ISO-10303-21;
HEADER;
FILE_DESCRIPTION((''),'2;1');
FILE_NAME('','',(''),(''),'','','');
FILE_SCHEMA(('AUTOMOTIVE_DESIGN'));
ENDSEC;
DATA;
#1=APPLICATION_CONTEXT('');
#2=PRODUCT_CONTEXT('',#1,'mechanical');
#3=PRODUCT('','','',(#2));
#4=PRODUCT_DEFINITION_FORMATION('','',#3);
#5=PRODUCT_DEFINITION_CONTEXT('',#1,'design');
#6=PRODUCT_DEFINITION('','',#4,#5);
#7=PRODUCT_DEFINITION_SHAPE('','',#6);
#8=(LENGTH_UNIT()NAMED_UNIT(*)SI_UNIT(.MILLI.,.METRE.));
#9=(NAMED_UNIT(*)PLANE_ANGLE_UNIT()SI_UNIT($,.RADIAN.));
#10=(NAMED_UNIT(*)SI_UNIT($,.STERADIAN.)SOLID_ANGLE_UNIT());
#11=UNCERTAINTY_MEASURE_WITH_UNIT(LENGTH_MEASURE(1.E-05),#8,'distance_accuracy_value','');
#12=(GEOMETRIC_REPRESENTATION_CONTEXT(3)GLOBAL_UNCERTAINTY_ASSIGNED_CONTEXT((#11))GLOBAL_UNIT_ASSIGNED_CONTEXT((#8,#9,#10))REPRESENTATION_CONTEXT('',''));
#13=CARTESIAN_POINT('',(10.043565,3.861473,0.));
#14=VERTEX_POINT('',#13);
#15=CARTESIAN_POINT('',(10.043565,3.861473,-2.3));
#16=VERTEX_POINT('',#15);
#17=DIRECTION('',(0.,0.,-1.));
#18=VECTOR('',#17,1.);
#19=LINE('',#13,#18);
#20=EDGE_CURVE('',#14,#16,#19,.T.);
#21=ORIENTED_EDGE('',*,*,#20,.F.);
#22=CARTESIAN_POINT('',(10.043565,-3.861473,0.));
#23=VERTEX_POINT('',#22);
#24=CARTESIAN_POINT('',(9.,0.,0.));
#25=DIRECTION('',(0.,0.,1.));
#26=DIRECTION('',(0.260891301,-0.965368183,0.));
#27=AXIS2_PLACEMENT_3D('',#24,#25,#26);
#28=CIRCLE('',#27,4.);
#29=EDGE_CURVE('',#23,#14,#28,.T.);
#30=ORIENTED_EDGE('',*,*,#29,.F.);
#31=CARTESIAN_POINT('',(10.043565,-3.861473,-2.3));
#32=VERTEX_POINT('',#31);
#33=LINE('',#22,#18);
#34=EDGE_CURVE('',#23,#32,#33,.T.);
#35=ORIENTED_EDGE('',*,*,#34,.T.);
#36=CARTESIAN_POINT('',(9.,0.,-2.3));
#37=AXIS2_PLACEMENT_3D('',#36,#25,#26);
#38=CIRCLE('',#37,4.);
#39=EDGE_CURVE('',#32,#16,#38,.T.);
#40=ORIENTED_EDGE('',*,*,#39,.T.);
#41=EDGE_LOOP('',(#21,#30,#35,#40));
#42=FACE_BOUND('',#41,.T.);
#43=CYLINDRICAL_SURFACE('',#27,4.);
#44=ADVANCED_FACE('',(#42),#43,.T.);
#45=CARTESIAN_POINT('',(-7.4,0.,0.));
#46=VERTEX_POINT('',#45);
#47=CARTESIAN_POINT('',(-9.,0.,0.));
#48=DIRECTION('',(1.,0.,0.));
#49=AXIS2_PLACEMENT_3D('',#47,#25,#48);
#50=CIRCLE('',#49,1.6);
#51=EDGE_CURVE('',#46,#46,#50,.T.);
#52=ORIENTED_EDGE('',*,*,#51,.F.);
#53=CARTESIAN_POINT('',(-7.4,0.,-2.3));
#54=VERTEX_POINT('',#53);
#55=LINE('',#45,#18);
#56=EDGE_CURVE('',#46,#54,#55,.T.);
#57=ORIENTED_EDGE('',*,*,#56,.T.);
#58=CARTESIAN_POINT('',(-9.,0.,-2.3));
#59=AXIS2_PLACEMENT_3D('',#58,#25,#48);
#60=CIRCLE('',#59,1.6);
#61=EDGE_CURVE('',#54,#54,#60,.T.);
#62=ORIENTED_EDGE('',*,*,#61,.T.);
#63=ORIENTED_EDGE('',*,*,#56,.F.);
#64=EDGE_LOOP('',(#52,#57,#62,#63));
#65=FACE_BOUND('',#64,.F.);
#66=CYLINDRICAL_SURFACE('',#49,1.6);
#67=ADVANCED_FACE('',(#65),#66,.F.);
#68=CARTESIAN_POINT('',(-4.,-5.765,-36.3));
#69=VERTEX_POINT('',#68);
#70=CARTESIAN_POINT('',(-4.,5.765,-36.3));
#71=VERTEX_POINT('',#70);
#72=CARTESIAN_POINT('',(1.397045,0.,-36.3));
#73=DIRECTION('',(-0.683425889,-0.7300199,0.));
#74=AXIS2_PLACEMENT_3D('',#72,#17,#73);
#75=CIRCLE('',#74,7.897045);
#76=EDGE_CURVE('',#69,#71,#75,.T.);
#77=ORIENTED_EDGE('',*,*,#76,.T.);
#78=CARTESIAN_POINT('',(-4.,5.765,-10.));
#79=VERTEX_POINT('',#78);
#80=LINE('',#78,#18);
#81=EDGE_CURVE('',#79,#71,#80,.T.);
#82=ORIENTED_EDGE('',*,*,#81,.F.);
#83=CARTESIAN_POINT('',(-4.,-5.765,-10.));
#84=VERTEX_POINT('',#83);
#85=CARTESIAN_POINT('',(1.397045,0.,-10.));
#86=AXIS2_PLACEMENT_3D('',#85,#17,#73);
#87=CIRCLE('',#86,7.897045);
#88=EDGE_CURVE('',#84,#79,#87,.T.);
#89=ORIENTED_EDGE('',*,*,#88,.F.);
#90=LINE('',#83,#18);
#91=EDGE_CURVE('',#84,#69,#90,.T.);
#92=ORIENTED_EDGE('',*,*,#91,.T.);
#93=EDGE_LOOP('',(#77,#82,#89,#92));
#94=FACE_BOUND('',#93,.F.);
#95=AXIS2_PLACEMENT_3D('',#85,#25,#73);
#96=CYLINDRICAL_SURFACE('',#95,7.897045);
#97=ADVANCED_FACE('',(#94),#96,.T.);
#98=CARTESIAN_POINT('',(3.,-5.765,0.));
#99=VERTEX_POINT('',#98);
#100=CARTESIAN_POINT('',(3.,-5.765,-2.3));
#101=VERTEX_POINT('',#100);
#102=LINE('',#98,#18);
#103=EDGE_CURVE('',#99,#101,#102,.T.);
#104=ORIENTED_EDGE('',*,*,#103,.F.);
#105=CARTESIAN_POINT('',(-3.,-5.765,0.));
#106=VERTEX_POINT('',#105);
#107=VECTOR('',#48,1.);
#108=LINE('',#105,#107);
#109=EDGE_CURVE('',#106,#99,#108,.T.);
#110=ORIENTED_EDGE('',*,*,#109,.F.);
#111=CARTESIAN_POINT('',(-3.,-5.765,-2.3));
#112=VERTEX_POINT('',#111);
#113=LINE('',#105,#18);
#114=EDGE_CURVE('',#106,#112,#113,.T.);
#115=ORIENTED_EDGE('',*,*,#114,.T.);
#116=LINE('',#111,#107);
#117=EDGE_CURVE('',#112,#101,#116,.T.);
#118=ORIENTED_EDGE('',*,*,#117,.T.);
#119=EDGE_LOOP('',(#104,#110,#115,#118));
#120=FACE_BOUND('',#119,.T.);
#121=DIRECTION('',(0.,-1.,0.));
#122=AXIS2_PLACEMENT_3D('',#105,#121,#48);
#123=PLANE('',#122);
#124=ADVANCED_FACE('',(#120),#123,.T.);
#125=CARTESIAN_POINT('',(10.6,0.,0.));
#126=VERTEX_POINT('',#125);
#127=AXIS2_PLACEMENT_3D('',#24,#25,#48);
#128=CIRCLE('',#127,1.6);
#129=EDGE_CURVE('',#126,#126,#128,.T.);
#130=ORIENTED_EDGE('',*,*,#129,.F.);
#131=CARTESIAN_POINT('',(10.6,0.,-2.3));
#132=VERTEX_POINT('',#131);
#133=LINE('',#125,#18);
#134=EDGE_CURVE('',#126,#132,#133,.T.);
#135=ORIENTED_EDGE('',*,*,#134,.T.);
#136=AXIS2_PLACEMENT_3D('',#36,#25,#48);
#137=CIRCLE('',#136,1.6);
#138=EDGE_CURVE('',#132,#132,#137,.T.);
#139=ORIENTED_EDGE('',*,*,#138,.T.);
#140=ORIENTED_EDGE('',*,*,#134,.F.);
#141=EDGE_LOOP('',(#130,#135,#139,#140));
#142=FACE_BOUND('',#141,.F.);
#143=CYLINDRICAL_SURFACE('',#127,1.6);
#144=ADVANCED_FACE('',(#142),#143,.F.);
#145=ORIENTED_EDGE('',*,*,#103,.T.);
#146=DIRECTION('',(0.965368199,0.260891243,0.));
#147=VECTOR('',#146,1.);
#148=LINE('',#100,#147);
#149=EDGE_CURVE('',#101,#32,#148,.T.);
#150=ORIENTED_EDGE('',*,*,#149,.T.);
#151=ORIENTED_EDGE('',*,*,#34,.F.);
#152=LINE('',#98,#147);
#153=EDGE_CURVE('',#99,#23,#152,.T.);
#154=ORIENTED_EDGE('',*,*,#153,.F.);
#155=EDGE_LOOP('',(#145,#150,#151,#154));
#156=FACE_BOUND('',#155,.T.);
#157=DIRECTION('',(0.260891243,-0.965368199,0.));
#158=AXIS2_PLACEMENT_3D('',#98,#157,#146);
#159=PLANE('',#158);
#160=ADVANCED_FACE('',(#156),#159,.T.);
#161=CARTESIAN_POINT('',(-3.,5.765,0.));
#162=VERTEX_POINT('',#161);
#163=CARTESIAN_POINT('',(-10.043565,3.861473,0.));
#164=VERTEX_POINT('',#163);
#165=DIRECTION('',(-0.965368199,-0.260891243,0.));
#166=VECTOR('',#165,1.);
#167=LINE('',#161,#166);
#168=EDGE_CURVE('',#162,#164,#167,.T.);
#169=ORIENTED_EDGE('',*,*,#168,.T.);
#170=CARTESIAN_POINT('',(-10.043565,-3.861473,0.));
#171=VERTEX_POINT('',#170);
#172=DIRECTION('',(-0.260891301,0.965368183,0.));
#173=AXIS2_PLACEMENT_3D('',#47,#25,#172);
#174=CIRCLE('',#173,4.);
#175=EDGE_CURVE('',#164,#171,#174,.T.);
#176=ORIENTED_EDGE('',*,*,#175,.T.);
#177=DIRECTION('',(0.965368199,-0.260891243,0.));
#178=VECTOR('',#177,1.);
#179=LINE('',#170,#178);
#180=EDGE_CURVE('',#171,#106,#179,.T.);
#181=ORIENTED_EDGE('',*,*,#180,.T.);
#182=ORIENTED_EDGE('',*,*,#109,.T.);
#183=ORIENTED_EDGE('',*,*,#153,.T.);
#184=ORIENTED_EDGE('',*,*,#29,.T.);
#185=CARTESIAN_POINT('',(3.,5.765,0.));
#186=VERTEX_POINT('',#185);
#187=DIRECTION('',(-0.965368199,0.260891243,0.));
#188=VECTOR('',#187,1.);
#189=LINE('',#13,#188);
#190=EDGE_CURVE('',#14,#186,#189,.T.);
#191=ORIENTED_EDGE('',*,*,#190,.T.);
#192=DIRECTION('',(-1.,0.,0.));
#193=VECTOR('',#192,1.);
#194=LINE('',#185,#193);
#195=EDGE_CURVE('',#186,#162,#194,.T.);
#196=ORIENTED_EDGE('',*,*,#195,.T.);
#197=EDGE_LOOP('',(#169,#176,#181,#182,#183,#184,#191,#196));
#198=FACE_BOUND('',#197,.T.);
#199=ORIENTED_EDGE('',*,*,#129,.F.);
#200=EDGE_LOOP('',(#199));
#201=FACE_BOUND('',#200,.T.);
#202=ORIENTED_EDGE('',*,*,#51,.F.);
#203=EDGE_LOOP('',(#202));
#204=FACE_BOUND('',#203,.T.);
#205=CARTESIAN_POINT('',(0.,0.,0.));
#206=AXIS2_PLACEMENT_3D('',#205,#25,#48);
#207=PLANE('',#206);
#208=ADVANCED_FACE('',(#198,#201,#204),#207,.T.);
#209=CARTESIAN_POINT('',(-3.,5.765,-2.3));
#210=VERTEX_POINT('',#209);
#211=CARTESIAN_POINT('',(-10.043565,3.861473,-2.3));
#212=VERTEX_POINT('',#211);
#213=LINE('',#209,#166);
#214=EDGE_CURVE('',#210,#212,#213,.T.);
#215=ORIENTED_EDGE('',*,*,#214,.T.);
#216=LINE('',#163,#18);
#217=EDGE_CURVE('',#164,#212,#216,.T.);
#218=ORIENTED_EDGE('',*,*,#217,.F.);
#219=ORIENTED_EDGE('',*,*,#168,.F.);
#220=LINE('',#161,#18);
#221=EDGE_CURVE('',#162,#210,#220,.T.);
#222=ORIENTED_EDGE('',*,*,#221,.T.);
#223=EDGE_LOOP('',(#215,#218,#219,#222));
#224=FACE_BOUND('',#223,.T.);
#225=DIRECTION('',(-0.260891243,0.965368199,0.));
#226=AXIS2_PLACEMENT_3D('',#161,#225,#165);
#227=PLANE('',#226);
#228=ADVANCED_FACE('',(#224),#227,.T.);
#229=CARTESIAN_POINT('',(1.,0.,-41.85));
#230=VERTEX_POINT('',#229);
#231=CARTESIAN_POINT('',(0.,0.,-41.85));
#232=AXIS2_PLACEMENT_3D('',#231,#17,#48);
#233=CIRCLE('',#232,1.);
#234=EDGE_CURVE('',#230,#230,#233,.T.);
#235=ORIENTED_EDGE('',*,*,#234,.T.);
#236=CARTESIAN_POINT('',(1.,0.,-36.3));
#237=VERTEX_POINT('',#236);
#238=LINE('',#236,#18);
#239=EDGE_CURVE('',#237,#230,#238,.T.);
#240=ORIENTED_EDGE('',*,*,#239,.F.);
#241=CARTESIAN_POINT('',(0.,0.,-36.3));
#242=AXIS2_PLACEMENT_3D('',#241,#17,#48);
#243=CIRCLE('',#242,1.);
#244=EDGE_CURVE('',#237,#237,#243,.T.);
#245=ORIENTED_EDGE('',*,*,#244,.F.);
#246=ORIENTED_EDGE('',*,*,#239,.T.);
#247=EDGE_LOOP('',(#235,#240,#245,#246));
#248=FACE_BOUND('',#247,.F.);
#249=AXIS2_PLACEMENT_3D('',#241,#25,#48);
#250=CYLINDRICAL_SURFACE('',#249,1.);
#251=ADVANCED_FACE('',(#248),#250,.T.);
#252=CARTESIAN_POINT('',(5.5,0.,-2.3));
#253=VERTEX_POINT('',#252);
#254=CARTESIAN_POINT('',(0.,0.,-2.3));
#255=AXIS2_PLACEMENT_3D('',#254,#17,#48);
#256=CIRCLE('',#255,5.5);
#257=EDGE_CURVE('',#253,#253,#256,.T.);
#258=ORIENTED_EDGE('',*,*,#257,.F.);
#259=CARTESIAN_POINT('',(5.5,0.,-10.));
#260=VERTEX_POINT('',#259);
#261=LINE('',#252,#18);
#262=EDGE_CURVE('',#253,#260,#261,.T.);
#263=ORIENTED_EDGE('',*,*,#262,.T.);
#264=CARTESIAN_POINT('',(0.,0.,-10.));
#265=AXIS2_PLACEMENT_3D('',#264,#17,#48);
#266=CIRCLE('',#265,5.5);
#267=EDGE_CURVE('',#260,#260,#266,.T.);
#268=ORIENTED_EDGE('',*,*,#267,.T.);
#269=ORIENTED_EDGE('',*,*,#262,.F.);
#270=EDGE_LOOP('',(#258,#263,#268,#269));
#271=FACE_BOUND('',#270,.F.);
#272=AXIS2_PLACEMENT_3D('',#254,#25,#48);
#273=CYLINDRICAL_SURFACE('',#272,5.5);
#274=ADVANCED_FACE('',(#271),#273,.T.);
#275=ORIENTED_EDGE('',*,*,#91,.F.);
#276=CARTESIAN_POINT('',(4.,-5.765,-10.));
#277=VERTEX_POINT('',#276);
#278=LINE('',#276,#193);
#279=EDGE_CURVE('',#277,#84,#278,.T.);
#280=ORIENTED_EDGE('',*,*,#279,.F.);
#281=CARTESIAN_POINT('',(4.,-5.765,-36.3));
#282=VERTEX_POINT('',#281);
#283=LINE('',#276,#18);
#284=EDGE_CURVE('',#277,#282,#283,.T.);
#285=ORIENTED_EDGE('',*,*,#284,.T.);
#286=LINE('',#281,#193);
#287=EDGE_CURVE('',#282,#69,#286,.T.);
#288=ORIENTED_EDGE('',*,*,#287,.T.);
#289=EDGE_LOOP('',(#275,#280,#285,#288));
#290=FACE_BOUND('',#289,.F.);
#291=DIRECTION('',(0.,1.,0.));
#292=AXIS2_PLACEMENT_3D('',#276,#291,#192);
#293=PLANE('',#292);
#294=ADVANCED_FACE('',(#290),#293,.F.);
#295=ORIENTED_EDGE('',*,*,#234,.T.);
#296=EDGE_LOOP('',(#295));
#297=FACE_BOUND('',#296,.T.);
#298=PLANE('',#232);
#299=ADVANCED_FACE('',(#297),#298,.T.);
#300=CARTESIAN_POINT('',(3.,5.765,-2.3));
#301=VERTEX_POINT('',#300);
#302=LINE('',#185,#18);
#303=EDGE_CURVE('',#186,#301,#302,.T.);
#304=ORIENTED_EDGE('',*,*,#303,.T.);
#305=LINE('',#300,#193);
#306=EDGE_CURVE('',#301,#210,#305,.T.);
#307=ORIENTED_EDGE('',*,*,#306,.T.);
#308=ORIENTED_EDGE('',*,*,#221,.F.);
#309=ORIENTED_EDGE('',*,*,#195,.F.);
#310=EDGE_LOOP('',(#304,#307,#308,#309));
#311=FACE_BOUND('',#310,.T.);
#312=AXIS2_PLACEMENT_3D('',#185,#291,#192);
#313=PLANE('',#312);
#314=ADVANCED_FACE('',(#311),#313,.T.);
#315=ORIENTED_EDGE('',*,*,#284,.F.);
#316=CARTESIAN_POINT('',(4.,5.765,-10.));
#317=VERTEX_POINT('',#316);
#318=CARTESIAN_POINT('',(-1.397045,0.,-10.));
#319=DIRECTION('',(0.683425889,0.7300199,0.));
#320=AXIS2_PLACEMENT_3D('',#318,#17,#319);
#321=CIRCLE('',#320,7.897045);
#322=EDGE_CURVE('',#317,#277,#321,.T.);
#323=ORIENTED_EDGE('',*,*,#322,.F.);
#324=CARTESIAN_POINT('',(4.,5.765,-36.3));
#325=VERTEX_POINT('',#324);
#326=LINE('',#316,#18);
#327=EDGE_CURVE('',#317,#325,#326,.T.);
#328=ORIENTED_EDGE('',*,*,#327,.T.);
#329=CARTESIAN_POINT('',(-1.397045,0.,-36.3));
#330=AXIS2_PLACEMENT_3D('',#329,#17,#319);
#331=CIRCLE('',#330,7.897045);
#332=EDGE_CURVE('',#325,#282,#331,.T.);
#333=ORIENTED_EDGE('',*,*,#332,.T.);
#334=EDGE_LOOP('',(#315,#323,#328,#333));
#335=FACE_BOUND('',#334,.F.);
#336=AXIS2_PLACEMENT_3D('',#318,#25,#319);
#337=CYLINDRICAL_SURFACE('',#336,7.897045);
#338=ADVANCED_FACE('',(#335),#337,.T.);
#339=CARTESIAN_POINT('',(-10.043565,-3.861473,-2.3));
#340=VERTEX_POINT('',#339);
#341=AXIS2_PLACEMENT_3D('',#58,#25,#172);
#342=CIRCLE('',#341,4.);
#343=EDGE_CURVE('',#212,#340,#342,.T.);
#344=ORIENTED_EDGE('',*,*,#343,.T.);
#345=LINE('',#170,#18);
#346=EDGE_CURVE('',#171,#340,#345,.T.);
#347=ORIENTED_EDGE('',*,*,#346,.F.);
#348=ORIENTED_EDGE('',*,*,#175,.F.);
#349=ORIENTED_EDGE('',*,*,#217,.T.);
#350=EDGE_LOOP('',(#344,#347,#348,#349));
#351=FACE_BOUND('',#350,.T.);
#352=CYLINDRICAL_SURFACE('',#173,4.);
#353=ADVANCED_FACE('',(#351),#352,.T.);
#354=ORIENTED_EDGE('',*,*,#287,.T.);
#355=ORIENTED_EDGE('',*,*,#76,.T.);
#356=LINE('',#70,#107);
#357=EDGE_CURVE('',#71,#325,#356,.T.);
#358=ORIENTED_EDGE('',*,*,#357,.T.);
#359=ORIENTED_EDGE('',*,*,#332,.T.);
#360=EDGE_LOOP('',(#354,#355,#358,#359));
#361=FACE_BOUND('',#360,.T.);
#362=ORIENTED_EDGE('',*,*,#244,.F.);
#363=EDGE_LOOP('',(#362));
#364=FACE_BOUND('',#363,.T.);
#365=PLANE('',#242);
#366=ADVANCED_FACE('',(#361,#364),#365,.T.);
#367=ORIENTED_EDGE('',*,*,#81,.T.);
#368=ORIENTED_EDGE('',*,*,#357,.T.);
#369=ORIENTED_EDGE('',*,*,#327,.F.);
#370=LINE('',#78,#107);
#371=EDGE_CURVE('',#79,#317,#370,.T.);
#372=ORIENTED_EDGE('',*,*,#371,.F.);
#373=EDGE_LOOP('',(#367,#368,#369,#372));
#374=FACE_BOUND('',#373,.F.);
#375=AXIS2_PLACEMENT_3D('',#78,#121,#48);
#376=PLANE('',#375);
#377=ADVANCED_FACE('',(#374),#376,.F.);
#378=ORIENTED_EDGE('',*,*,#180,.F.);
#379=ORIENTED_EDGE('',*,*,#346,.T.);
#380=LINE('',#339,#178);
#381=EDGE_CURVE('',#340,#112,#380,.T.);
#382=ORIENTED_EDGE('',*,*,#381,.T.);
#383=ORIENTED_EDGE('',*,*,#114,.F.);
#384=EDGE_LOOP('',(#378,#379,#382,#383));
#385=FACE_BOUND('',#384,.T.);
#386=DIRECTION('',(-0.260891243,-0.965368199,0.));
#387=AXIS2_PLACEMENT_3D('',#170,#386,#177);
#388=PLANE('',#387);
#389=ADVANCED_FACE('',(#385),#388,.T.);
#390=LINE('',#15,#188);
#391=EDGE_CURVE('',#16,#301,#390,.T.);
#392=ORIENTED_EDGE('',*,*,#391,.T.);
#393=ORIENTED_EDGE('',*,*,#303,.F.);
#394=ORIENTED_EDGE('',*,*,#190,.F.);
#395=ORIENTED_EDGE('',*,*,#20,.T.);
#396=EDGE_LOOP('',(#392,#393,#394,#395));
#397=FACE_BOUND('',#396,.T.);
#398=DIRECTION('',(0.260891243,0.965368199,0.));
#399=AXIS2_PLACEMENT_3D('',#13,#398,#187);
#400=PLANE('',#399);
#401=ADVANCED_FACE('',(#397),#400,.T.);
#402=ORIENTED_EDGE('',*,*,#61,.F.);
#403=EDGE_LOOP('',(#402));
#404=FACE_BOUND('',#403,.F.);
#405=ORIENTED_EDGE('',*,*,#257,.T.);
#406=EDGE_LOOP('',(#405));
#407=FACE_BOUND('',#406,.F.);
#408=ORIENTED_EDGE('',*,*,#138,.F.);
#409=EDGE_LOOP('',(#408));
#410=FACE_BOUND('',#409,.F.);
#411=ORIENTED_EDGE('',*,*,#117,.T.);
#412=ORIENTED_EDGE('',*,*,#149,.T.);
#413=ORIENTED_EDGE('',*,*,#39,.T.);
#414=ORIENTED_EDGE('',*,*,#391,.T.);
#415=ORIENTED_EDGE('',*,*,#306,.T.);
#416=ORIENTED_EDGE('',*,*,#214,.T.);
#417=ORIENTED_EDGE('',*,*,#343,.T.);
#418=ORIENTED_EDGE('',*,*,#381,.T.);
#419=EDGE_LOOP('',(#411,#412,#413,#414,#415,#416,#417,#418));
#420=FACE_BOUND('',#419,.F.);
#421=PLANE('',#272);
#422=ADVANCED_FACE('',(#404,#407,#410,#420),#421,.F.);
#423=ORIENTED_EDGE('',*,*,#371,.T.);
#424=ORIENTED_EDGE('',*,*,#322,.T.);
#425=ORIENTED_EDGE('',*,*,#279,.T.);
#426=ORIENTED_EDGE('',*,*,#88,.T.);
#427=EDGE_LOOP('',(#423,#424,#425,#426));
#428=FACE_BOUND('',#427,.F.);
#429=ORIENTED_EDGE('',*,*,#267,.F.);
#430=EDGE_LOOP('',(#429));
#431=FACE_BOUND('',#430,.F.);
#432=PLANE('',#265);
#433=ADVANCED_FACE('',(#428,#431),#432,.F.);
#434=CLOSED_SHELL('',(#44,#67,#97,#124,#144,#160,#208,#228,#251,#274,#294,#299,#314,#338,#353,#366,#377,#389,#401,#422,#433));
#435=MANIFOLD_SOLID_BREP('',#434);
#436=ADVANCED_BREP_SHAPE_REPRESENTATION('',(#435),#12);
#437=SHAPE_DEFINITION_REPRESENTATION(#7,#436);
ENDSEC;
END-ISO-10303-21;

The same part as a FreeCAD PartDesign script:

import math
import FreeCAD as App
import Part
import Sketcher
Q = App.Units.Quantity

doc = App.newDocument("Part")
params = doc.addObject("Spreadsheet::Sheet", "Params")
for row, (alias, value) in enumerate([
    ("sketch1_radius", "4 mm"),
    ("sketch1_diameter", "3.2 mm"),
    ("sketch1_width", "6 mm"),
    ("pad1_length", "2.3 mm"),
    ("sketch2_diameter", "11 mm"),
    ("pad2_length", "7.7 mm"),
    ("sketch3_width", "8 mm"),
    ("pad3_length", "26.3 mm"),
    ("sketch4_diameter", "2 mm"),
    ("pad4_length", "5.55 mm"),
], start=1):
    params.set(f"A{row}", alias)
    params.set(f"B{row}", "=" + value)
    params.setAlias(f"B{row}", alias)

body = doc.addObject("PartDesign::Body", "Body")

# Sketch on XY plane
sketch1 = body.newObject("Sketcher::SketchObject", "Sketch")
sketch1.AttachmentSupport = (doc.getObject("XY_Plane"), [""])
sketch1.MapMode = "FlatFace"
sketch1.addGeometry([
    Part.LineSegment(App.Vector(3, 5.765, 0), App.Vector(-3, 5.765, 0)),  # 0
    Part.LineSegment(App.Vector(-3, 5.765, 0), App.Vector(-10.043565, 3.861473, 0)),  # 1
    Part.ArcOfCircle(Part.Circle(App.Vector(-9, 0, 0), App.Vector(0, 0, 1), 4), math.radians(105.122955), math.radians(254.877045)),  # 2
    Part.LineSegment(App.Vector(-10.043565, -3.861473, 0), App.Vector(-3, -5.765, 0)),  # 3
    Part.LineSegment(App.Vector(-3, -5.765, 0), App.Vector(3, -5.765, 0)),  # 4
    Part.LineSegment(App.Vector(3, -5.765, 0), App.Vector(10.043565, -3.861473, 0)),  # 5
    Part.ArcOfCircle(Part.Circle(App.Vector(9, 0, 0), App.Vector(0, 0, 1), 4), math.radians(-74.877045), math.radians(74.877045)),  # 6
    Part.LineSegment(App.Vector(10.043565, 3.861473, 0), App.Vector(3, 5.765, 0)),  # 7
    Part.Circle(App.Vector(-9, 0, 0), App.Vector(0, 0, 1), 1.6),  # 8
    Part.Circle(App.Vector(9, 0, 0), App.Vector(0, 0, 1), 1.6),  # 9
], False)
sketch1.addConstraint([
    Sketcher.Constraint("Coincident", 0, 2, 1, 1),
    Sketcher.Constraint("Tangent", 1, 2, 2, 1),
    Sketcher.Constraint("Tangent", 2, 2, 3, 1),
    Sketcher.Constraint("Coincident", 3, 2, 4, 1),
    Sketcher.Constraint("Coincident", 4, 2, 5, 1),
    Sketcher.Constraint("Tangent", 5, 2, 6, 1),
    Sketcher.Constraint("Tangent", 6, 2, 7, 1),
    Sketcher.Constraint("Coincident", 7, 2, 0, 1),
    Sketcher.Constraint("Horizontal", 0),
    Sketcher.Constraint("Horizontal", 4),
    Sketcher.Constraint("Coincident", 8, 3, 2, 3),
    Sketcher.Constraint("Coincident", 9, 3, 6, 3),
    Sketcher.Constraint("Equal", 2, 6),
    Sketcher.Constraint("Equal", 8, 9),
    Sketcher.Constraint("Symmetric", 2, 3, 6, 3, -1, 1),
    Sketcher.Constraint("Symmetric", 0, 2, 4, 2, -1, 1),
    Sketcher.Constraint("Symmetric", 2, 2, 5, 2, -2),
    Sketcher.Constraint("Parallel", 3, 7),
    Sketcher.Constraint("Radius", 2, Q("4 mm")),
    Sketcher.Constraint("Diameter", 8, Q("3.2 mm")),
    Sketcher.Constraint("DistanceX", 0, 2, 0, 1, Q("6 mm")),
    Sketcher.Constraint("DistanceX", 2, 3, -1, 1, Q("9 mm")),
    Sketcher.Constraint("DistanceY", 3, 2, 0, 2, Q("11.53 mm")),
])
sketch1.setExpression("Constraints[18]", "Params.sketch1_radius")
sketch1.setExpression("Constraints[19]", "Params.sketch1_diameter")
sketch1.setExpression("Constraints[20]", "Params.sketch1_width")
pad1 = body.newObject("PartDesign::Pad", "Pad")
pad1.Profile = sketch1
pad1.setExpression("Length", "Params.pad1_length")
pad1.Reversed = True

# Sketch on XY plane
sketch2 = body.newObject("Sketcher::SketchObject", "Sketch001")
sketch2.AttachmentSupport = (doc.getObject("XY_Plane"), [""])
sketch2.MapMode = "FlatFace"
sketch2.AttachmentOffset = App.Placement(App.Vector(0, 0, -2.3), App.Rotation())
sketch2.addGeometry(Part.Circle(App.Vector(0, 0, 0), App.Vector(0, 0, 1), 5.5), False)
sketch2.addConstraint([
    Sketcher.Constraint("Coincident", 0, 3, -1, 1),
    Sketcher.Constraint("Diameter", 0, Q("11 mm")),
])
sketch2.setExpression("Constraints[1]", "Params.sketch2_diameter")
pad2 = body.newObject("PartDesign::Pad", "Pad001")
pad2.Profile = sketch2
pad2.setExpression("Length", "Params.pad2_length")
pad2.Reversed = True

# Sketch on XY plane
sketch3 = body.newObject("Sketcher::SketchObject", "Sketch002")
sketch3.AttachmentSupport = (doc.getObject("XY_Plane"), [""])
sketch3.MapMode = "FlatFace"
sketch3.AttachmentOffset = App.Placement(App.Vector(0, 0, -10), App.Rotation())
sketch3.addGeometry([
    Part.LineSegment(App.Vector(4, -5.765, 0), App.Vector(-4, -5.765, 0)),
    Part.ArcOfCircle(Part.Circle(App.Vector(1.397045, 0, 0), App.Vector(0, 0, 1), 7.897045), math.radians(133.111938), math.radians(226.888062)),
    Part.LineSegment(App.Vector(-4, 5.765, 0), App.Vector(4, 5.765, 0)),
    Part.ArcOfCircle(Part.Circle(App.Vector(-1.397045, 0, 0), App.Vector(0, 0, 1), 7.897045), math.radians(-46.888062), math.radians(46.888062)),
], False)
sketch3.addConstraint([
    Sketcher.Constraint("Coincident", 0, 2, 1, 2),
    Sketcher.Constraint("Coincident", 1, 1, 2, 1),
    Sketcher.Constraint("Coincident", 2, 2, 3, 2),
    Sketcher.Constraint("Coincident", 3, 1, 0, 1),
    Sketcher.Constraint("Horizontal", 0),
    Sketcher.Constraint("Horizontal", 2),
    Sketcher.Constraint("Equal", 1, 3),
    Sketcher.Constraint("Symmetric", 1, 3, 3, 3, -1, 1),
    Sketcher.Constraint("Symmetric", 0, 2, 1, 1, -1),
    Sketcher.Constraint("DistanceX", 0, 2, 0, 1, Q("8 mm")),
    Sketcher.Constraint("DistanceY", 0, 2, 1, 1, Q("11.53 mm")),
    Sketcher.Constraint("Radius", 1, Q("7.897045 mm")),
])
sketch3.setExpression("Constraints[9]", "Params.sketch3_width")
pad3 = body.newObject("PartDesign::Pad", "Pad002")
pad3.Profile = sketch3
pad3.setExpression("Length", "Params.pad3_length")
pad3.Reversed = True

# Sketch on XY plane
sketch4 = body.newObject("Sketcher::SketchObject", "Sketch003")
sketch4.AttachmentSupport = (doc.getObject("XY_Plane"), [""])
sketch4.MapMode = "FlatFace"
sketch4.AttachmentOffset = App.Placement(App.Vector(0, 0, -36.3), App.Rotation())
sketch4.addGeometry(Part.Circle(App.Vector(0, 0, 0), App.Vector(0, 0, 1), 1), False)
sketch4.addConstraint([
    Sketcher.Constraint("Coincident", 0, 3, -1, 1),
    Sketcher.Constraint("Diameter", 0, Q("2 mm")),
])
sketch4.setExpression("Constraints[1]", "Params.sketch4_diameter")
pad4 = body.newObject("PartDesign::Pad", "Pad003")
pad4.Profile = sketch4
pad4.setExpression("Length", "Params.pad4_length")
pad4.Reversed = True

doc.recompute()
